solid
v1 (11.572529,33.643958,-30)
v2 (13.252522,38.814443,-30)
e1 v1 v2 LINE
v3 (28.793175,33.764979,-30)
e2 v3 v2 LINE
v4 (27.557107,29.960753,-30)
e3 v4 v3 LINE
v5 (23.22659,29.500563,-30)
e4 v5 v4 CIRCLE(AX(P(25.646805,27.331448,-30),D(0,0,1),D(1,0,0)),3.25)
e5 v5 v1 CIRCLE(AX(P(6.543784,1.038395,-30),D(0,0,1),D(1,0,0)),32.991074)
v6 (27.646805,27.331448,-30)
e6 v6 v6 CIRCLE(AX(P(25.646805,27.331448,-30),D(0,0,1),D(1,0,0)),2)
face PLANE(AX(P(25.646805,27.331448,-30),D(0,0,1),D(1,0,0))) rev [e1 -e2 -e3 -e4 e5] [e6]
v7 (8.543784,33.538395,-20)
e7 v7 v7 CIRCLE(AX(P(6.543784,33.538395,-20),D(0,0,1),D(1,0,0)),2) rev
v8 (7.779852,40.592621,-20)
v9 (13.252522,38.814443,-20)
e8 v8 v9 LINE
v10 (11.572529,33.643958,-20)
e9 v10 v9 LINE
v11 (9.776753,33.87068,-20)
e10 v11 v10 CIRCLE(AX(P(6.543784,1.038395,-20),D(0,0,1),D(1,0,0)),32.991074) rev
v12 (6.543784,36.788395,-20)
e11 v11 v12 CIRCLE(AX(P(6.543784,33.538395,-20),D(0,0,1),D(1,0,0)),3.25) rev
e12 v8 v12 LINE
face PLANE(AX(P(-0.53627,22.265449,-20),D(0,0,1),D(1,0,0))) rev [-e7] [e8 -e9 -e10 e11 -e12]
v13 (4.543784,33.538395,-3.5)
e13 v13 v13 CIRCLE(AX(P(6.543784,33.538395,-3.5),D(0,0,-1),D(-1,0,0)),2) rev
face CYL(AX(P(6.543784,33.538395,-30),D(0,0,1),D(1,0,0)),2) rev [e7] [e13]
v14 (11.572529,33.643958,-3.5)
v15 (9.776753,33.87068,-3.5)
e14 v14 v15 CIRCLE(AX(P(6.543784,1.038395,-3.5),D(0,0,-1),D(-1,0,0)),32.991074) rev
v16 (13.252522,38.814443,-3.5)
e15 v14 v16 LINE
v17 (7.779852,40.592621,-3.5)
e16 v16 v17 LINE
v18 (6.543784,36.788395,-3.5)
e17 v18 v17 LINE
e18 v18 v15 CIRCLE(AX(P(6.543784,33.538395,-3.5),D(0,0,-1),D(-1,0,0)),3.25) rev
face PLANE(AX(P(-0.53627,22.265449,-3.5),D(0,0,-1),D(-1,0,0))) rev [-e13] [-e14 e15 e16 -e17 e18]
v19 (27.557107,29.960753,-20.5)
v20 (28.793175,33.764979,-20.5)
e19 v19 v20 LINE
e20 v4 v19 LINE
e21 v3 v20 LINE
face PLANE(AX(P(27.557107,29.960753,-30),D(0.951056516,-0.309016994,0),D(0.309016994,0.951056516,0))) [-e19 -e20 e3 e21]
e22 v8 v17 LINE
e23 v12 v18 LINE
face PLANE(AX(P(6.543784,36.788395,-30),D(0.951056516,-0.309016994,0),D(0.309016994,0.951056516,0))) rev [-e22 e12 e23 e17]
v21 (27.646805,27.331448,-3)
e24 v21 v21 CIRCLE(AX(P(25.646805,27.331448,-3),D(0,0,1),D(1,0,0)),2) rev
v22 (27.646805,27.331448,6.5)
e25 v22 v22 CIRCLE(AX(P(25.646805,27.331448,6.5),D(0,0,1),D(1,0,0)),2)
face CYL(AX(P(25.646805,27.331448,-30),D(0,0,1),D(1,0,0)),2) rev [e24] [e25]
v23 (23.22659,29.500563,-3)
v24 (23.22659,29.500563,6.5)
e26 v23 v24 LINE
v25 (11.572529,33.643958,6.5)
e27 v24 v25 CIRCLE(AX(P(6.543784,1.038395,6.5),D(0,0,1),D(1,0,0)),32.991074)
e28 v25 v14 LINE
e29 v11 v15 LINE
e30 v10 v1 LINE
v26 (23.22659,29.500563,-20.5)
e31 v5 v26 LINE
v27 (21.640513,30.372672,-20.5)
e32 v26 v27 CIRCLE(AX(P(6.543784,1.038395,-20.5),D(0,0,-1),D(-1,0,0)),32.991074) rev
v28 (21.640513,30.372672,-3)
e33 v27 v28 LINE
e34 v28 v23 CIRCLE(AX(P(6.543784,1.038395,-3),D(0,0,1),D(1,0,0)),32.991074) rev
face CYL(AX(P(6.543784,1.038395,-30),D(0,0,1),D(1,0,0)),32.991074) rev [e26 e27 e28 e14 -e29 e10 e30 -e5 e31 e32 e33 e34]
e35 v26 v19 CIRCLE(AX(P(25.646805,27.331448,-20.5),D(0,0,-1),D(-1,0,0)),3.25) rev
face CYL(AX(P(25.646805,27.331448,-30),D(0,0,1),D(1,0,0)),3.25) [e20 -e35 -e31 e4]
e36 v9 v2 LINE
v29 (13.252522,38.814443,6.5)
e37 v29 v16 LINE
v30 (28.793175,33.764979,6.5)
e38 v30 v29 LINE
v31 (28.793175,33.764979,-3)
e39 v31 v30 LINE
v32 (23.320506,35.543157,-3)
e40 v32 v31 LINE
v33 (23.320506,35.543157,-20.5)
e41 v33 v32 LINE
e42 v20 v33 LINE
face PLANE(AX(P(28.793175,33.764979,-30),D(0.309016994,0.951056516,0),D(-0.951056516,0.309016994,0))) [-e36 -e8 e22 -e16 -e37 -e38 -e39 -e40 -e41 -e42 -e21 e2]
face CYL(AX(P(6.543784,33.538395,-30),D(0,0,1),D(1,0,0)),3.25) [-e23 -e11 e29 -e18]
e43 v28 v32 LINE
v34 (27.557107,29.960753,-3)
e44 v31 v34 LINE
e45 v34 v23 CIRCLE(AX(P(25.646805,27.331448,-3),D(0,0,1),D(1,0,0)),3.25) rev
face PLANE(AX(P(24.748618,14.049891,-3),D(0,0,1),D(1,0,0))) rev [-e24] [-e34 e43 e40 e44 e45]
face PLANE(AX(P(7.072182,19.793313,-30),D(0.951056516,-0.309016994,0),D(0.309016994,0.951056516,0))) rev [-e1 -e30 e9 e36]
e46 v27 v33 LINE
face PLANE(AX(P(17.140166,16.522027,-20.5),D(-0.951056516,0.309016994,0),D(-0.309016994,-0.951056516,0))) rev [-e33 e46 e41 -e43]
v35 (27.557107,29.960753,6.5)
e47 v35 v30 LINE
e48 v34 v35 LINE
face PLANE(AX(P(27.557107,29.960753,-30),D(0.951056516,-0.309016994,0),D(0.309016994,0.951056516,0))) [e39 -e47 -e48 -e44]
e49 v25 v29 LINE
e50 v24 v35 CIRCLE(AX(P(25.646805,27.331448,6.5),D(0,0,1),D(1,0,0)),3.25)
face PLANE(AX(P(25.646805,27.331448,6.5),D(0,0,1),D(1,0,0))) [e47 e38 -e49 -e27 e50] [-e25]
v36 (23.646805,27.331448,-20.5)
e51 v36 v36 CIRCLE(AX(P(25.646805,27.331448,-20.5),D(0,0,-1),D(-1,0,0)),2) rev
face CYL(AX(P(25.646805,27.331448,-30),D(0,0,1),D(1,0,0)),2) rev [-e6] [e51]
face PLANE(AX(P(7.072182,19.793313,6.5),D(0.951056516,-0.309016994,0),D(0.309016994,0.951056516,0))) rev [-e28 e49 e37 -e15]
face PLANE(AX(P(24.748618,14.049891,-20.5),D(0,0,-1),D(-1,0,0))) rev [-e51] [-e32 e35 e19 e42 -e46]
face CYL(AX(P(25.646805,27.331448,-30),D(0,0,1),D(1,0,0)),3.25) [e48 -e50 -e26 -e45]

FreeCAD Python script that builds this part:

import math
import FreeCAD as App
import Part
import Sketcher
from FreeCAD import Vector
Q = App.Units.Quantity


def add_polygon(sketch, points):
    """Adds a closed chain of lines whose ends are joined by coincident constraints."""
    first, n = sketch.GeometryCount, len(points)
    for a, b in zip(points, points[1:] + points[:1]):
        sketch.addGeometry(Part.LineSegment(App.Vector(*a, 0), App.Vector(*b, 0)), False)
    for i in range(n):
        sketch.addConstraint(Sketcher.Constraint("Coincident", first + i, 2, first + (i + 1) % n, 1))

doc = App.newDocument("Part")
body = doc.addObject("PartDesign::Body", "Body")

# Sketch on XY plane
sketch1 = body.newObject("Sketcher::SketchObject", "Sketch")
sketch1.AttachmentSupport = (doc.getObject("XY_Plane"), [""])
sketch1.MapMode = "FlatFace"
sketch1.addGeometry(Part.LineSegment(Vector(28.793175, 33.764979, 0), Vector(7.779852, 40.592621, 0)), False)
sketch1.addGeometry(Part.LineSegment(Vector(7.779852, 40.592621, 0), Vector(6.543784, 36.788395, 0)), False)
sketch1.addGeometry(Part.ArcOfCircle(Part.Circle(Vector(6.543784, 33.538395, 0), Vector(0, 0, 1), 3.25), math.radians(90), math.radians(365.868251)), False)
sketch1.addGeometry(Part.ArcOfCircle(Part.Circle(Vector(6.543784, 1.038395, 0), Vector(0, 0, 1), 32.991074), math.radians(59.62374), math.radians(84.37626)), False)
sketch1.addGeometry(Part.ArcOfCircle(Part.Circle(Vector(25.646805, 27.331448, 0), Vector(0, 0, 1), 3.25), math.radians(138.131749), math.radians(414)), False)
sketch1.addGeometry(Part.LineSegment(Vector(27.557107, 29.960753, 0), Vector(28.793175, 33.764979, 0)), False)
sketch1.addGeometry(Part.Circle(Vector(25.646805, 27.331448, 0), Vector(0, 0, 1), 2), False)
sketch1.addGeometry(Part.Circle(Vector(6.543784, 33.538395, 0), Vector(0, 0, 1), 2), False)
sketch1.addConstraint(Sketcher.Constraint("Coincident", 0, 2, 1, 1))
sketch1.addConstraint(Sketcher.Constraint("Coincident", 1, 2, 2, 1))
sketch1.addConstraint(Sketcher.Constraint("Coincident", 2, 2, 3, 2))
sketch1.addConstraint(Sketcher.Constraint("Coincident", 3, 1, 4, 1))
sketch1.addConstraint(Sketcher.Constraint("Coincident", 4, 2, 5, 1))
sketch1.addConstraint(Sketcher.Constraint("Coincident", 5, 2, 0, 1))
sketch1.addConstraint(Sketcher.Constraint("Coincident", 6, 3, 4, 3))
sketch1.addConstraint(Sketcher.Constraint("Coincident", 7, 3, 2, 3))
sketch1.addConstraint(Sketcher.Constraint("Equal", 2, 4))
sketch1.addConstraint(Sketcher.Constraint("Equal", 6, 7))
sketch1.addConstraint(Sketcher.Constraint("Perpendicular", 0, 1))
sketch1.addConstraint(Sketcher.Constraint("Parallel", 1, 5))
sketch1.addConstraint(Sketcher.Constraint("Vertical", 2, 3, 3, 3))
sketch1.addConstraint(Sketcher.Constraint("Vertical", 7, 3, 1, 2))
sketch1.addConstraint(Sketcher.Constraint("Equal", 1, 5))
sketch1.addConstraint(Sketcher.Constraint("Diameter", 6, Q("4 mm")))
sketch1.addConstraint(Sketcher.Constraint("Angle", 0, Q("162 deg")))
sketch1.addConstraint(Sketcher.Constraint("Radius", 2, Q("3.25 mm")))
sketch1.addConstraint(Sketcher.Constraint("Distance", 1, Q("4 mm")))
sketch1.addConstraint(Sketcher.Constraint("DistanceY", 3, 3, 2, 3, Q("32.5 mm")))
sketch1.addConstraint(Sketcher.Constraint("Radius", 3, Q("32.991074 mm")))
sketch1.addConstraint(Sketcher.Constraint("DistanceY", 5, 2, 2, 2, Q("0.105701 mm")))
sketch1.addConstraint(Sketcher.Constraint("DistanceY", -1, 1, 0, 2, Q("40.592621 mm")))
sketch1.addConstraint(Sketcher.Constraint("DistanceX", -1, 1, 3, 1, Q("23.22659 mm")))
sketch1.addConstraint(Sketcher.Constraint("DistanceX", 2, 3, 4, 3, Q("19.103021 mm")))
pad1 = body.newObject("PartDesign::Pad", "Pad")
pad1.Profile = sketch1
pad1.Type = "TwoLengths"
pad1.Length = 6.5
pad1.Length2 = 30

# Sketch on an angled plane
sketch2 = body.newObject("Sketcher::SketchObject", "Sketch001")
sketch2.Placement = App.Placement(Vector(12.672782, 39.002812, 0), App.Rotation(Vector(0.951056516, -0.309016994, 0), Vector(0, 0, -0.999999999), Vector(0.309016994, 0.951056516, 0), "ZXY"))
add_polygon(sketch2, [(-7.390425, 30), (-7.390425, 20), (0.609575, 20), (0.609575, 30)])  # lines 0-3
add_polygon(sketch2, [(-7.390425, 3.5), (-7.390425, -6.5), (0.609575, -6.5), (0.609575, 3.5)])  # lines 4-7
add_polygon(sketch2, [(11.195679, 20.5), (11.195679, 3), (19.195679, 3), (19.195679, 20.5)])  # lines 8-11
sketch2.addConstraint(Sketcher.Constraint("Vertical", 0))
sketch2.addConstraint(Sketcher.Constraint("Horizontal", 1))
sketch2.addConstraint(Sketcher.Constraint("Vertical", 2))
sketch2.addConstraint(Sketcher.Constraint("Horizontal", 3))
sketch2.addConstraint(Sketcher.Constraint("Vertical", 4))
sketch2.addConstraint(Sketcher.Constraint("Horizontal", 5))
sketch2.addConstraint(Sketcher.Constraint("Vertical", 6))
sketch2.addConstraint(Sketcher.Constraint("Horizontal", 7))
sketch2.addConstraint(Sketcher.Constraint("Vertical", 8))
sketch2.addConstraint(Sketcher.Constraint("Horizontal", 9))
sketch2.addConstraint(Sketcher.Constraint("Vertical", 10))
sketch2.addConstraint(Sketcher.Constraint("Horizontal", 11))
sketch2.addConstraint(Sketcher.Constraint("Vertical", 3, 2, 4, 2))
sketch2.addConstraint(Sketcher.Constraint("Vertical", 2, 2, 5, 2))
sketch2.addConstraint(Sketcher.Constraint("Equal", 7, 9))
sketch2.addConstraint(Sketcher.Constraint("Equal", 2, 4))
sketch2.addConstraint(Sketcher.Constraint("DistanceX", 1, 1, 1, 2, Q("8 mm")))
sketch2.addConstraint(Sketcher.Constraint("DistanceY", 0, 2, 0, 1, Q("10 mm")))
sketch2.addConstraint(Sketcher.Constraint("DistanceY", 8, 2, 8, 1, Q("17.5 mm")))
sketch2.addConstraint(Sketcher.Constraint("DistanceY", -1, 1, 0, 2, Q("20 mm")))
sketch2.addConstraint(Sketcher.Constraint("DistanceY", -1, 1, 8, 2, Q("3 mm")))
sketch2.addConstraint(Sketcher.Constraint("DistanceY", 6, 2, 10, 2, Q("17 mm")))
sketch2.addConstraint(Sketcher.Constraint("DistanceX", -1, 1, 8, 2, Q("11.195679 mm")))
sketch2.addConstraint(Sketcher.Constraint("DistanceX", 0, 2, -1, 1, Q("7.390425 mm")))
pocket1 = body.newObject("PartDesign::Pocket", "Pocket")
pocket1.Profile = sketch2
pocket1.Length = 20

doc.recompute()
